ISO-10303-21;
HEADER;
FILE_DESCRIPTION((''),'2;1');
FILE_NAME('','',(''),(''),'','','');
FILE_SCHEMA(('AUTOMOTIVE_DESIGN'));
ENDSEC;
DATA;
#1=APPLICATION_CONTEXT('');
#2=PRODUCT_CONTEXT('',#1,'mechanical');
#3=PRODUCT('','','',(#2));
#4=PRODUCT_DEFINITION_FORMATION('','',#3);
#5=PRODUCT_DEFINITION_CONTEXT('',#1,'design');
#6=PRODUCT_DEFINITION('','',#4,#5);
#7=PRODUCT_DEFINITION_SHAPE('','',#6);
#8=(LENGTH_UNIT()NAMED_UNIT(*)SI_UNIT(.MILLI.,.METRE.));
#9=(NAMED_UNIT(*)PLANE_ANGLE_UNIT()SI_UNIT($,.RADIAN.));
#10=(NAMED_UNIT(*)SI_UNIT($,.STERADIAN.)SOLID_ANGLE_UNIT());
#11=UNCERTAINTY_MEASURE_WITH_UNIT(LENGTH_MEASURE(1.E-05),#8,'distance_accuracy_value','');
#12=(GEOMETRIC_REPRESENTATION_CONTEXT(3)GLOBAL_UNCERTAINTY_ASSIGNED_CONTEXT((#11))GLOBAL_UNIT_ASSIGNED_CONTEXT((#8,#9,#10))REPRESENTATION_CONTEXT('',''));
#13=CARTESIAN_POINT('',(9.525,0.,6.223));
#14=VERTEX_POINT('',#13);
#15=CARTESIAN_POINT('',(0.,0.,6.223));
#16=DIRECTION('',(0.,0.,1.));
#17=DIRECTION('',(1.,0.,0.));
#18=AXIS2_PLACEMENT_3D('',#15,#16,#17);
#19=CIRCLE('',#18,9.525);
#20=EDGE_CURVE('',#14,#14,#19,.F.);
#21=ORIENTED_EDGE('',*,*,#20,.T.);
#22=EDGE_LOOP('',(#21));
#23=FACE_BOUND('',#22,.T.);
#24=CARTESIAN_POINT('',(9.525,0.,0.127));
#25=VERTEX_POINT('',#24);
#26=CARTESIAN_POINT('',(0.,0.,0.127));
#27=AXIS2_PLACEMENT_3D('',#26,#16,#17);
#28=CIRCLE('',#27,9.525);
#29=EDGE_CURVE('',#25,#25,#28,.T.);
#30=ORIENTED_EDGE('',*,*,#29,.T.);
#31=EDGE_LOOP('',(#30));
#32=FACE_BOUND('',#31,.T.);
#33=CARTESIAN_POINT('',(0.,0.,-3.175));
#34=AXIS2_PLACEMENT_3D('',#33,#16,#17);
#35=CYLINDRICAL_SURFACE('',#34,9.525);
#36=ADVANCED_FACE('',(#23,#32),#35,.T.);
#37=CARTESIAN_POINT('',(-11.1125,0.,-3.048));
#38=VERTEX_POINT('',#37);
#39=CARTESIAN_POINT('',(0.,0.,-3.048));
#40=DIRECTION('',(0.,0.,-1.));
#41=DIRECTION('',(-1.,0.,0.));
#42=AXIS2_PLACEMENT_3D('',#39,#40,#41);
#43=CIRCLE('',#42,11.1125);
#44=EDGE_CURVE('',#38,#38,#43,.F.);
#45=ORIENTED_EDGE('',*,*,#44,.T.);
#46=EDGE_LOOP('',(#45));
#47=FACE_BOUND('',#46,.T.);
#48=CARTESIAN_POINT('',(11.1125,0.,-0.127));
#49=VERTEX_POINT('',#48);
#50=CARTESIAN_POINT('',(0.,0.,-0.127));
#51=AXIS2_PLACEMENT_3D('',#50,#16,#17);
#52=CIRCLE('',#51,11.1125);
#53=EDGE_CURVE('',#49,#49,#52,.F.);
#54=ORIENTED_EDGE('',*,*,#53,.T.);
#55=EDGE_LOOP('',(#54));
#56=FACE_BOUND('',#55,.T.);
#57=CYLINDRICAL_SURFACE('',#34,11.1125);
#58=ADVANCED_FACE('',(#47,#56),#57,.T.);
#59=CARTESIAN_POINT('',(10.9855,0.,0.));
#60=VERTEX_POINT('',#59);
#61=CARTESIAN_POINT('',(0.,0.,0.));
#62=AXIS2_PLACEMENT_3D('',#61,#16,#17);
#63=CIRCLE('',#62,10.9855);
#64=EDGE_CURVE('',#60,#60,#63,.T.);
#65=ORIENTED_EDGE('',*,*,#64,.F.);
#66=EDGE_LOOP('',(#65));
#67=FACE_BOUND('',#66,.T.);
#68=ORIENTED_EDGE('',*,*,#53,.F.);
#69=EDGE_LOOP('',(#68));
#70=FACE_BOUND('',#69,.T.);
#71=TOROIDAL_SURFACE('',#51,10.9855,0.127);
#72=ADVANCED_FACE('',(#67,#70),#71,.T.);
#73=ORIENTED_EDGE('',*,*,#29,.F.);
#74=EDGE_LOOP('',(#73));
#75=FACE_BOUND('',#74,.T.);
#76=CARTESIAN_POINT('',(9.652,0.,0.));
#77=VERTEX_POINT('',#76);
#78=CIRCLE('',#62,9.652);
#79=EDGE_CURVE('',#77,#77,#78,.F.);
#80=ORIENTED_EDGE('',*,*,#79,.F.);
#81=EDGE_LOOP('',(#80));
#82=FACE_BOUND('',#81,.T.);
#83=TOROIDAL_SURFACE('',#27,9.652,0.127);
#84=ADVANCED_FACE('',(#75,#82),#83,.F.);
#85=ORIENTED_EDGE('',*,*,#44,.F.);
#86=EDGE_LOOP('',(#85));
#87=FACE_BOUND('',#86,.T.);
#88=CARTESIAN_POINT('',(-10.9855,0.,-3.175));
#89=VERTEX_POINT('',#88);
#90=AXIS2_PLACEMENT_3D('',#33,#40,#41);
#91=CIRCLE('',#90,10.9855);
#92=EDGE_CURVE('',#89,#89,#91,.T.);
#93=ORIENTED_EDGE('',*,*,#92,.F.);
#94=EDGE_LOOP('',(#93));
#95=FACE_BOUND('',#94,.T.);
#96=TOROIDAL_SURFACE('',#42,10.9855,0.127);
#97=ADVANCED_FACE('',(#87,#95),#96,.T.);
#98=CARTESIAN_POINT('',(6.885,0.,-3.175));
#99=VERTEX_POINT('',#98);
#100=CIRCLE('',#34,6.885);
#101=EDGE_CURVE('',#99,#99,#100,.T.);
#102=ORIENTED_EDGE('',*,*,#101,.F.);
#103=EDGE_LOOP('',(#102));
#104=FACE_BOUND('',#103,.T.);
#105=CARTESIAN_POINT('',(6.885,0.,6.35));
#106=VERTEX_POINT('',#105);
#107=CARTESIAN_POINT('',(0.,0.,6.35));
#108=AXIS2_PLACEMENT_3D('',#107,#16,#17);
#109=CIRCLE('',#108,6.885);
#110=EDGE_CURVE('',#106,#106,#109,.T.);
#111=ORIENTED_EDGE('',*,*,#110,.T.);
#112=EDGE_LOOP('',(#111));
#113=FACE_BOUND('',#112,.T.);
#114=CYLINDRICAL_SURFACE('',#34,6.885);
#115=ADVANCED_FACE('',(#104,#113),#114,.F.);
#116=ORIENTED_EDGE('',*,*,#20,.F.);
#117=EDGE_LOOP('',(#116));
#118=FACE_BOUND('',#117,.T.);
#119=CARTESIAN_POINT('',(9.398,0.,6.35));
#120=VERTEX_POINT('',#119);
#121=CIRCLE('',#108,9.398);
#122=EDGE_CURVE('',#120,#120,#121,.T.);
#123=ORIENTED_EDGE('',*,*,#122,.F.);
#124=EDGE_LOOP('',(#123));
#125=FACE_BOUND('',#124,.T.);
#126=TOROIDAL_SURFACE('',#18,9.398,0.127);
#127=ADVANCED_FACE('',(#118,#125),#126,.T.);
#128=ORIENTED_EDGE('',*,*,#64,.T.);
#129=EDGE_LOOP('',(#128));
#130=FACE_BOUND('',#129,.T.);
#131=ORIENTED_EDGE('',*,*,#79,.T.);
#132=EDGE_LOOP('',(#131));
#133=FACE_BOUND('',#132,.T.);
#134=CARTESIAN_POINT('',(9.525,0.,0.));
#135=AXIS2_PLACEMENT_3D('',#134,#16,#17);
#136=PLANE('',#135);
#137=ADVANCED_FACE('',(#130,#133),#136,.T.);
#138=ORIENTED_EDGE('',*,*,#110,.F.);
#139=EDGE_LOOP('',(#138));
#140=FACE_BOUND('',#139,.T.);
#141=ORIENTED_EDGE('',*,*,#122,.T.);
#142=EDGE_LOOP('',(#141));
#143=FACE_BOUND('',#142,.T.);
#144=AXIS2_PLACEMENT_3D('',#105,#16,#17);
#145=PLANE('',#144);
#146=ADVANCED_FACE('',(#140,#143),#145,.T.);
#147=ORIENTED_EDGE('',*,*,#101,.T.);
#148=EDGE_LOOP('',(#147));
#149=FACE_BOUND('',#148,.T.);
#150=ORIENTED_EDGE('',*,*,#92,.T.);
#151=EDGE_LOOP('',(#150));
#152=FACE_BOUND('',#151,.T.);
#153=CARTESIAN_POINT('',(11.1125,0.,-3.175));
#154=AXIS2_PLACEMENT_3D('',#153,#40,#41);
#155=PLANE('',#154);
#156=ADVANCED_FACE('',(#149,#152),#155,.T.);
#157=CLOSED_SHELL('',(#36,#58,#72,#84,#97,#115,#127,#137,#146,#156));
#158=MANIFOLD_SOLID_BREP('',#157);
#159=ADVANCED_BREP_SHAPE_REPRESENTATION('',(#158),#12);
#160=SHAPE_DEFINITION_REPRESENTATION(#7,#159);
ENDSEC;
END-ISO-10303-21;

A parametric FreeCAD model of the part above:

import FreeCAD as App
import Part
import Sketcher

V = App.Vector
Q = App.Units.Quantity


def edges_at(feature, points):
    """Names of the edges that pass closest to the given points."""
    edges = feature.Shape.Edges
    near = lambda p: min(range(len(edges)), key=lambda i: edges[i].distToShape(Part.Vertex(*p))[0])
    return sorted({f"Edge{near(p) + 1}" for p in points})

doc = App.newDocument("Part")
body = doc.addObject("PartDesign::Body", "Body")

# Sketch on XZ plane
sketch1 = body.newObject("Sketcher::SketchObject", "Sketch")
sketch1.AttachmentSupport = (doc.getObject("XZ_Plane"), [""])
sketch1.MapMode = "FlatFace"
sketch1.addGeometry([
    Part.LineSegment(V(6.9, 6.3, 0), V(9.5, 6.3, 0)),  # 0
    Part.LineSegment(V(9.5, 6.3, 0), V(9.5, 0, 0)),  # 1
    Part.LineSegment(V(9.5, 0, 0), V(11.1, 0, 0)),  # 2
    Part.LineSegment(V(11.1, 0, 0), V(11.1, -3.2, 0)),  # 3
    Part.LineSegment(V(11.1, -3.2, 0), V(6.9, -3.2, 0)),  # 4
    Part.LineSegment(V(6.9, -3.2, 0), V(6.9, 6.3, 0)),  # 5
], False)
sketch1.addConstraint([
    Sketcher.Constraint("Coincident", 0, 2, 1, 1),
    Sketcher.Constraint("Coincident", 1, 2, 2, 1),
    Sketcher.Constraint("Coincident", 2, 2, 3, 1),
    Sketcher.Constraint("Coincident", 3, 2, 4, 1),
    Sketcher.Constraint("Coincident", 4, 2, 5, 1),
    Sketcher.Constraint("Coincident", 5, 2, 0, 1),
    Sketcher.Constraint("Horizontal", 0),
    Sketcher.Constraint("Vertical", 1),
    Sketcher.Constraint("Horizontal", 2),
    Sketcher.Constraint("Vertical", 3),
    Sketcher.Constraint("Horizontal", 4),
    Sketcher.Constraint("Vertical", 5),
    Sketcher.Constraint("PointOnObject", 1, 2, -1),
    Sketcher.Constraint("DistanceY", 1, 2, 1, 1, Q("0.25 in")),
    Sketcher.Constraint("DistanceX", 2, 1, 2, 2, Q("0.0625 in")),
    Sketcher.Constraint("DistanceY", 3, 2, 3, 1, Q("0.125 in")),
    Sketcher.Constraint("DistanceX", -1, 1, 0, 2, Q("0.375 in")),
    Sketcher.Constraint("DistanceX", 0, 1, 0, 2, Q("2.64 mm")),
])
revolution = body.newObject("PartDesign::Revolution", "Revolution")
revolution.Profile = sketch1
revolution.ReferenceAxis = (sketch1, ["V_Axis"])
revolution.Angle = 360
doc.recompute()

fillet = body.newObject("PartDesign::Fillet", "Fillet")
fillet.Base = (revolution, edges_at(revolution, [
    (-11.113, 0, -3.175),
    (-11.113, 0, 0),
    (-9.525, 0, 0),
    (-9.525, 0, 6.35),
]))
fillet.Radius = Q("0.005 in")

doc.recompute()
